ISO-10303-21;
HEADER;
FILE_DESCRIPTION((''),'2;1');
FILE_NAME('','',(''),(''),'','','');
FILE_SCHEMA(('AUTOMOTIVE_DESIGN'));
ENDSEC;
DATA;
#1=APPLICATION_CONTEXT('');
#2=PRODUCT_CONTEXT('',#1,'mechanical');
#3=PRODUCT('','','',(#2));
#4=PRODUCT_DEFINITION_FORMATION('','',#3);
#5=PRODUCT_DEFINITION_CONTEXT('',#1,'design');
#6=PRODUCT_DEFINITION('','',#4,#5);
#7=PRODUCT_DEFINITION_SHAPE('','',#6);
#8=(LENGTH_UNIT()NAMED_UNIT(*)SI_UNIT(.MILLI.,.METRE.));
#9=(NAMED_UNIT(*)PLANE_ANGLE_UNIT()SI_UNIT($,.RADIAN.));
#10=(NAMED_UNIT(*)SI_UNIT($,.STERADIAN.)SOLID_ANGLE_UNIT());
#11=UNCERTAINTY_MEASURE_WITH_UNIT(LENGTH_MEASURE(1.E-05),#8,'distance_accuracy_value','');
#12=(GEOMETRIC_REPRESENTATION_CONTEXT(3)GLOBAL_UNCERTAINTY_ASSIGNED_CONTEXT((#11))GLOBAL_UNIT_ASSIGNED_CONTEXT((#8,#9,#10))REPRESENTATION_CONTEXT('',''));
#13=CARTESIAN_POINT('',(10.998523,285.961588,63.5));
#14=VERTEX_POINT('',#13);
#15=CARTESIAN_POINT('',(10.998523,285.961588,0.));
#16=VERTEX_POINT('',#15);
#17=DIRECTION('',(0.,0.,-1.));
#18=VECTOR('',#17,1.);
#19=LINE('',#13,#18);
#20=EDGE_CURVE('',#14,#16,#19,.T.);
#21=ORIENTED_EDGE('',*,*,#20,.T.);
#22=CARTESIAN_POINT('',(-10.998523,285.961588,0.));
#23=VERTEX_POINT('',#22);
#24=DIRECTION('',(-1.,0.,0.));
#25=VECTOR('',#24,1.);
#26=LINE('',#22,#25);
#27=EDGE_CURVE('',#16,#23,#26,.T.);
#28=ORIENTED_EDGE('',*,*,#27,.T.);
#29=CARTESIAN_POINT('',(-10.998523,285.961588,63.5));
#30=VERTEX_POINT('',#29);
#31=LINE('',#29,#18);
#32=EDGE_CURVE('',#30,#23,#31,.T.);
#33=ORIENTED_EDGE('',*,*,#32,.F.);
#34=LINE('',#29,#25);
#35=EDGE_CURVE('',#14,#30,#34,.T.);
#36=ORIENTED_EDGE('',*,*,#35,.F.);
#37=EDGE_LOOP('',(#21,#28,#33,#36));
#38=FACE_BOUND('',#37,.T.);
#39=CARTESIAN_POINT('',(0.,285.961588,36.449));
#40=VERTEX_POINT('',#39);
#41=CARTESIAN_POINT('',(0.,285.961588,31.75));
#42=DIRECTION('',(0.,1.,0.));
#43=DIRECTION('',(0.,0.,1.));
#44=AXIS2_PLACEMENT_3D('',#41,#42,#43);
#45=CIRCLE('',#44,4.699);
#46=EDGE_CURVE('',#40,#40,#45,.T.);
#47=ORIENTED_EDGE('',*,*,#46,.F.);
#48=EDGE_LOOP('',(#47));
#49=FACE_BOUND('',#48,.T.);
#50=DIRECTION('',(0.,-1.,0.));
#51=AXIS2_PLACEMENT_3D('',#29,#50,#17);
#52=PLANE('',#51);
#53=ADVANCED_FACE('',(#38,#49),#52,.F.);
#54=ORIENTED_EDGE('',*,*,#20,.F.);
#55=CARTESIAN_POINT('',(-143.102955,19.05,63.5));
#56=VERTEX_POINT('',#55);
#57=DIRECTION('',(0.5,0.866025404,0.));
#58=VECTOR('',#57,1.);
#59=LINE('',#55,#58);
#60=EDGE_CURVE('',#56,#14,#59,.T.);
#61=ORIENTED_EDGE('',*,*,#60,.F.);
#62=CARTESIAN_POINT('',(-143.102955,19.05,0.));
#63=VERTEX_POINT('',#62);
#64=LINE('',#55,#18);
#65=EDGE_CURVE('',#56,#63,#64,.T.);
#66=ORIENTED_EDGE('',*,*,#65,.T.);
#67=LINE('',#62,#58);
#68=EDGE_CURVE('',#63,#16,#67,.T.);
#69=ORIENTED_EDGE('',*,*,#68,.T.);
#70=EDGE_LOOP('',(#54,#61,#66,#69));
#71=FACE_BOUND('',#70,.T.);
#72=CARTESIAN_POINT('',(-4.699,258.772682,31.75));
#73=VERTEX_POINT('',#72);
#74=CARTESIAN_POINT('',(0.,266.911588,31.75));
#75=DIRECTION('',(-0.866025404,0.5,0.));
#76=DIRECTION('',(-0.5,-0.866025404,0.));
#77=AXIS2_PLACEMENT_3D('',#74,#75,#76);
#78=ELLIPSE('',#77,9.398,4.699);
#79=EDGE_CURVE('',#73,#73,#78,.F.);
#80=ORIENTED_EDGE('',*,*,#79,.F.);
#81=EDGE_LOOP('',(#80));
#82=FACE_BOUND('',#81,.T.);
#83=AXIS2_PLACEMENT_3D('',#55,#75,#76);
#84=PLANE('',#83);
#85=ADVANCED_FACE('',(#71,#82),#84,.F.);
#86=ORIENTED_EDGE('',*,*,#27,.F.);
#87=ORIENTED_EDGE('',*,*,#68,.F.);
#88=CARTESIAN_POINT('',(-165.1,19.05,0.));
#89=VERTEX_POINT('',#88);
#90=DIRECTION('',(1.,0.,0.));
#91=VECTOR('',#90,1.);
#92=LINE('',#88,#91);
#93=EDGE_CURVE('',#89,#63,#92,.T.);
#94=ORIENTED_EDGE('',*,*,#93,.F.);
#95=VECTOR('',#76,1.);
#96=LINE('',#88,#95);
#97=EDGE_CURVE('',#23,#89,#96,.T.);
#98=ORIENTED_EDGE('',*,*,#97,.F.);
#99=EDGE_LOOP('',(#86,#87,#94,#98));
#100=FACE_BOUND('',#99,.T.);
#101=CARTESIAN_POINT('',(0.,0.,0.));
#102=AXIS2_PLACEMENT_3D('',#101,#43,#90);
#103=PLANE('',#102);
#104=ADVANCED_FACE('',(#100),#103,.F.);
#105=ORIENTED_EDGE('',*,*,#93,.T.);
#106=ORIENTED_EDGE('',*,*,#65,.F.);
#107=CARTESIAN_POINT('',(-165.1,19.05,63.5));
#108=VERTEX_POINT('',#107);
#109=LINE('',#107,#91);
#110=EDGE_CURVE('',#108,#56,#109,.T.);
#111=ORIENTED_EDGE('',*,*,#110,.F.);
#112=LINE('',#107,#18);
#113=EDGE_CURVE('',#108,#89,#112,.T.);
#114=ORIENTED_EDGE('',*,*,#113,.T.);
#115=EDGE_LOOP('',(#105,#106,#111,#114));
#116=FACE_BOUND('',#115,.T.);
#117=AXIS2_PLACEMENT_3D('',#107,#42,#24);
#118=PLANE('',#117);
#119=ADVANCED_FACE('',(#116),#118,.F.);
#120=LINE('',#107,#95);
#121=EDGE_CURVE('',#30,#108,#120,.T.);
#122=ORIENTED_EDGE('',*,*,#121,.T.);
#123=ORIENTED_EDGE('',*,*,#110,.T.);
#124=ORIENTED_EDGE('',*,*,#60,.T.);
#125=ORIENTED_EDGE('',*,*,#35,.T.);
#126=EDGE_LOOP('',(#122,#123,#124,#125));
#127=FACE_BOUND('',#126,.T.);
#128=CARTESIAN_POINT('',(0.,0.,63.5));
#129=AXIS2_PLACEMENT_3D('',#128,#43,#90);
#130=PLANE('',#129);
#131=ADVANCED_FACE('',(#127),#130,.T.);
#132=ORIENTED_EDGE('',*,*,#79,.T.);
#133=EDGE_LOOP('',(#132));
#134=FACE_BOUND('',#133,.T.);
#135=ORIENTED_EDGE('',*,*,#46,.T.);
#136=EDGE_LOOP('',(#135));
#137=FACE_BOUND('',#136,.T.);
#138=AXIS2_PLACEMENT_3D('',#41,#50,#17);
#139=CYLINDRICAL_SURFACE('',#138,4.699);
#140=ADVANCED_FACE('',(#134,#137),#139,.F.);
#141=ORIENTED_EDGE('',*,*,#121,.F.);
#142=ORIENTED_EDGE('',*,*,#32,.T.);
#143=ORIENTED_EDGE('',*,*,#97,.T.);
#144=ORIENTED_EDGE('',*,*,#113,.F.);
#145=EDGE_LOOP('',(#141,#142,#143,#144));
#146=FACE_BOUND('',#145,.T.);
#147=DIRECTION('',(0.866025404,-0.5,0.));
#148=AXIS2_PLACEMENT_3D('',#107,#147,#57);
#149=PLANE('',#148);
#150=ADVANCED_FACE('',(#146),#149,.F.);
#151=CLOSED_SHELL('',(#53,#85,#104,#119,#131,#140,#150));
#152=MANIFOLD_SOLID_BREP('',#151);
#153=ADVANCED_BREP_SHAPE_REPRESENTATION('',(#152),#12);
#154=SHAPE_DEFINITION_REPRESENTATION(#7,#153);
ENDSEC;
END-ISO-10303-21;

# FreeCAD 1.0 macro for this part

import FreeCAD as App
import Part
import Sketcher

V = App.Vector
Q = App.Units.Quantity

doc = App.newDocument("Part")
body = doc.addObject("PartDesign::Body", "Body")

# Sketch on XY plane
sketch1 = body.newObject("Sketcher::SketchObject", "Sketch")
sketch1.AttachmentSupport = (doc.getObject("XY_Plane"), [""])
sketch1.MapMode = "FlatFace"
sketch1.addGeometry([
    Part.LineSegment(V(-11, 286, 0), V(-165, 19, 0)),
    Part.LineSegment(V(-165, 19, 0), V(-143, 19, 0)),
    Part.LineSegment(V(-143, 19, 0), V(11, 286, 0)),
    Part.LineSegment(V(11, 286, 0), V(-11, 286, 0)),
], False)
sketch1.addConstraint([
    Sketcher.Constraint("Coincident", 0, 2, 1, 1),
    Sketcher.Constraint("Coincident", 1, 2, 2, 1),
    Sketcher.Constraint("Coincident", 2, 2, 3, 1),
    Sketcher.Constraint("Coincident", 3, 2, 0, 1),
    Sketcher.Constraint("Horizontal", 1),
    Sketcher.Constraint("Horizontal", 3),
    Sketcher.Constraint("Parallel", 0, 2),
    Sketcher.Constraint("Angle", 0, Q("-120 deg")),
    Sketcher.Constraint("DistanceX", 0, 2, -1, 1, Q("6.5 in")),
    Sketcher.Constraint("DistanceY", -1, 1, 0, 2, Q("0.75 in")),
    Sketcher.Constraint("DistanceX", 1, 1, 1, 2, Q("21.997045 mm")),
    Sketcher.Constraint("DistanceY", -1, 1, 2, 2, Q("285.961588 mm")),
])
pad1 = body.newObject("PartDesign::Pad", "Pad")
pad1.Profile = sketch1
pad1.Length = Q("2.5 in")

# Sketch on XZ plane
sketch2 = body.newObject("Sketcher::SketchObject", "Sketch001")
sketch2.AttachmentSupport = (doc.getObject("XZ_Plane"), [""])
sketch2.MapMode = "FlatFace"
sketch2.addGeometry(Part.Circle(V(0, 31.8, 0), V(0, 0, 1), 4.7), False)
sketch2.addConstraint([
    Sketcher.Constraint("PointOnObject", 0, 3, -2),
    Sketcher.Constraint("Diameter", 0, Q("0.37 in")),
    Sketcher.Constraint("DistanceY", -1, 1, 0, 3, Q("1.25 in")),
])
pocket1 = body.newObject("PartDesign::Pocket", "Pocket")
pocket1.Profile = sketch2
pocket1.Type = "ThroughAll"

doc.recompute()
